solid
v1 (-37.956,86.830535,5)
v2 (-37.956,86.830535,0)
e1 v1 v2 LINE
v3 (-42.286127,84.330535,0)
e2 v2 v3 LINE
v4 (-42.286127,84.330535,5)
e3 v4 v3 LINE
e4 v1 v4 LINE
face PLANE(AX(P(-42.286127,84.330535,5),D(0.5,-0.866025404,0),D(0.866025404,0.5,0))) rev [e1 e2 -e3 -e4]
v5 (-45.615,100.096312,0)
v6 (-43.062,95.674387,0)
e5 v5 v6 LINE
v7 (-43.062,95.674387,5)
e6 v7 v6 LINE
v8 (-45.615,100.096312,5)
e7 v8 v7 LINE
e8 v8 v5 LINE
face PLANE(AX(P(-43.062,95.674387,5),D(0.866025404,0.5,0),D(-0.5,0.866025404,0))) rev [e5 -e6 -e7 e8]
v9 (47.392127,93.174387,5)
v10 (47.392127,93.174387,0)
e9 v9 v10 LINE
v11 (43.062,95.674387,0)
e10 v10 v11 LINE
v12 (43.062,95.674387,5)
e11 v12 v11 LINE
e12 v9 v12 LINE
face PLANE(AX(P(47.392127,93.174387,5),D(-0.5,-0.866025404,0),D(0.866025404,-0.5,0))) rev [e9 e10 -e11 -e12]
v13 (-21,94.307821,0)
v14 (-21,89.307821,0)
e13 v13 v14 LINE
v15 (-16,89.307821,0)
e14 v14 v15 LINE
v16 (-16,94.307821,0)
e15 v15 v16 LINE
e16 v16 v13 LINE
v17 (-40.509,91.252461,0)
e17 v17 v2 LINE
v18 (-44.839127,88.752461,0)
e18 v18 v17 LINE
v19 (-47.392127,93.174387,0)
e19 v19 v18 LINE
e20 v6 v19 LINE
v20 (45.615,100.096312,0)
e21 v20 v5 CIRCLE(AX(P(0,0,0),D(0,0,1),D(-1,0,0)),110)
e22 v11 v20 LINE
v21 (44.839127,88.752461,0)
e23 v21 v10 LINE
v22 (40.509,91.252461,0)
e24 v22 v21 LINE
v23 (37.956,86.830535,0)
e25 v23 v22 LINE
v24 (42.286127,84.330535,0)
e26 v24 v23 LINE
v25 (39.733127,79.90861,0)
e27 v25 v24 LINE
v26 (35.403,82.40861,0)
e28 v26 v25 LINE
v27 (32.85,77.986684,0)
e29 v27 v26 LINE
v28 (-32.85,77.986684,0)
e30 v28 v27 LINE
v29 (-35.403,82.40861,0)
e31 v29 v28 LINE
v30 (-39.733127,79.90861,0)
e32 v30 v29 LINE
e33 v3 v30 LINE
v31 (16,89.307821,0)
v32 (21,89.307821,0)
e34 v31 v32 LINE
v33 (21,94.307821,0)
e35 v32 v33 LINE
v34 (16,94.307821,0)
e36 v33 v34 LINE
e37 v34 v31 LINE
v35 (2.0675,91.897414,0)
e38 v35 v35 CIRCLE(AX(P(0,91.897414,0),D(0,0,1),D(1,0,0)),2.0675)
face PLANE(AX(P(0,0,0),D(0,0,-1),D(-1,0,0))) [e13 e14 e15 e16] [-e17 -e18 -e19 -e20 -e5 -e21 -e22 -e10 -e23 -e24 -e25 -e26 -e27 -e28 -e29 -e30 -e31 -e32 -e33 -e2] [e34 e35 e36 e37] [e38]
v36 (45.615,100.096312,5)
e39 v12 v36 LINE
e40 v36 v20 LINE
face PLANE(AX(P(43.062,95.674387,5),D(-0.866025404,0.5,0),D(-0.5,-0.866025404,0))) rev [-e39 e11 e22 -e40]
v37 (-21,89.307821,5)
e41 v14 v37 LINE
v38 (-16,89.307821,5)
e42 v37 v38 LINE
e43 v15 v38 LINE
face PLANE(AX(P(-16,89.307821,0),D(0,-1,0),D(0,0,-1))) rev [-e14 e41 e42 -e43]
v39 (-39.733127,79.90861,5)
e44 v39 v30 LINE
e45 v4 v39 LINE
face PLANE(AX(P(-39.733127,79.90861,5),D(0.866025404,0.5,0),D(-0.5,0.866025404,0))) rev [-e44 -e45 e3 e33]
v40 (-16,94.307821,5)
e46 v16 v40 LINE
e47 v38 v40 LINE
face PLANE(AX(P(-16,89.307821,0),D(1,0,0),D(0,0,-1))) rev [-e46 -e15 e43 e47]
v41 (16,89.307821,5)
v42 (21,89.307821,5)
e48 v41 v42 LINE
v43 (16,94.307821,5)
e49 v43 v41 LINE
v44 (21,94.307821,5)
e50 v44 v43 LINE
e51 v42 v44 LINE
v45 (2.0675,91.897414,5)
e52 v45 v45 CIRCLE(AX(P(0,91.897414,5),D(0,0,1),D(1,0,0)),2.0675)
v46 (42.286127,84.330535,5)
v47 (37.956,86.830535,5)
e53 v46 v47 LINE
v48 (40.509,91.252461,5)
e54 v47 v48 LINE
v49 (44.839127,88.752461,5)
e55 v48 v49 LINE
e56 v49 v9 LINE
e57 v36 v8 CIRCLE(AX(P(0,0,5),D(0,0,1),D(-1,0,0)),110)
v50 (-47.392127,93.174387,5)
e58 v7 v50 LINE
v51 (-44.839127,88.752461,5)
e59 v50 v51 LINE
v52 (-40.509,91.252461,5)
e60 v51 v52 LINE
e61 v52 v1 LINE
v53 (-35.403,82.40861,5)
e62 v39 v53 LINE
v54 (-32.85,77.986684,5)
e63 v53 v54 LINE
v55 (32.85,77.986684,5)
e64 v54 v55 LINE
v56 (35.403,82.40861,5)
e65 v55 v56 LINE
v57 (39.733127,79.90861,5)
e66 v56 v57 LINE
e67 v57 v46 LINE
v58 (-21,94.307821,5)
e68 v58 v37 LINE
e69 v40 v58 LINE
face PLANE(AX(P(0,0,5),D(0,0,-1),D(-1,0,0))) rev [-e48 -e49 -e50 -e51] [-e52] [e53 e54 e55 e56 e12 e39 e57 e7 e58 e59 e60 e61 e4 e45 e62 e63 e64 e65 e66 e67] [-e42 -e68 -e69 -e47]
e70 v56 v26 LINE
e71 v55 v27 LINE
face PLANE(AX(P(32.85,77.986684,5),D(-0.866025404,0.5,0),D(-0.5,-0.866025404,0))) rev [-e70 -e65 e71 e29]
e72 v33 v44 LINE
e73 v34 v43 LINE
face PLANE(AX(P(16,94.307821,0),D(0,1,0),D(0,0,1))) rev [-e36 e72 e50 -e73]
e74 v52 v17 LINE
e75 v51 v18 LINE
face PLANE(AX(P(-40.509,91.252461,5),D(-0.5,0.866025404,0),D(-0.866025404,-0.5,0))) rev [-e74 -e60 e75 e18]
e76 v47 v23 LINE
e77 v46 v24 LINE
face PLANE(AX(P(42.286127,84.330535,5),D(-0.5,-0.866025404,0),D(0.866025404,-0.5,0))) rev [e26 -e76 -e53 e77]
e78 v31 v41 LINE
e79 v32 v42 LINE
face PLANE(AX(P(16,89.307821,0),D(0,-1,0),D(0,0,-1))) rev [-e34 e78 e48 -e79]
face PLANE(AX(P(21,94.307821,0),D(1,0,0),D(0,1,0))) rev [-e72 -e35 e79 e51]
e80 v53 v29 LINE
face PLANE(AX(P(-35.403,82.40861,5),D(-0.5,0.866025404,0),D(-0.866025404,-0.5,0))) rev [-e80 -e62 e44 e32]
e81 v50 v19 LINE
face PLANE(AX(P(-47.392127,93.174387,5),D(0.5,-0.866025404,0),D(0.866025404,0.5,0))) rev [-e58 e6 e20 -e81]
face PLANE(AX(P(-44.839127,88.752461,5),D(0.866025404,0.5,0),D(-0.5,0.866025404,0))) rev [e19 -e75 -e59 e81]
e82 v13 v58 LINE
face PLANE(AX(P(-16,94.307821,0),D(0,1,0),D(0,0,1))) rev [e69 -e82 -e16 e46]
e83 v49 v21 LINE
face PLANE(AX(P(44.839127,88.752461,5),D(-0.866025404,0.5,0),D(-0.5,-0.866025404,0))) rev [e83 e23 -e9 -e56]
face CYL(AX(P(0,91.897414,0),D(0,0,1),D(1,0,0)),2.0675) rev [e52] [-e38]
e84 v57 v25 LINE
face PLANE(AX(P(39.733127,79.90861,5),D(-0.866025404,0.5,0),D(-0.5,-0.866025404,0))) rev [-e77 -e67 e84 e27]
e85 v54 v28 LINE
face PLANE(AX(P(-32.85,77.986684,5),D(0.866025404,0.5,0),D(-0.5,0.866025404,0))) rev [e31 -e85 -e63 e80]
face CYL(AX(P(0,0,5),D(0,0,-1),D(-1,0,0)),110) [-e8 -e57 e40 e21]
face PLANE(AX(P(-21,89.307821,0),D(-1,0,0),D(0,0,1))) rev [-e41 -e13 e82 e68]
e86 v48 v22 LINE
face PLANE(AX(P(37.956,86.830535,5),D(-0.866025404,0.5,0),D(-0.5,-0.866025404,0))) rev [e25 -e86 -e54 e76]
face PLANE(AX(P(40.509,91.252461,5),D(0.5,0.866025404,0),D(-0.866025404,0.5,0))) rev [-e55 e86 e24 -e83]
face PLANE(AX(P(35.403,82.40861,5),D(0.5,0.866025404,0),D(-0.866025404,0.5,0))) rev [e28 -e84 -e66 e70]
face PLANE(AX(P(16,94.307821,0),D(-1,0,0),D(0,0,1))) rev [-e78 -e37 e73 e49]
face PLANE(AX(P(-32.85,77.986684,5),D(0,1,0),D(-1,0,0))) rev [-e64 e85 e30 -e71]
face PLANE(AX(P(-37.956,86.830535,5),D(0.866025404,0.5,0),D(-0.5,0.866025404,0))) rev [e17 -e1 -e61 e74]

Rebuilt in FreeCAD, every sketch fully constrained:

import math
import FreeCAD as App
import Part
import Sketcher
Q = App.Units.Quantity


def add_polygon(sketch, points):
    """Adds a closed chain of lines whose ends are joined by coincident constraints."""
    first, n = sketch.GeometryCount, len(points)
    for a, b in zip(points, points[1:] + points[:1]):
        sketch.addGeometry(Part.LineSegment(App.Vector(*a, 0), App.Vector(*b, 0)), False)
    for i in range(n):
        sketch.addConstraint(Sketcher.Constraint("Coincident", first + i, 2, first + (i + 1) % n, 1))

doc = App.newDocument("Part")
params = doc.addObject("Spreadsheet::Sheet", "Params")
for row, (alias, value) in enumerate([
    ("sketch1_radius", "110 mm"),
    ("sketch1_length", "5 mm"),
    ("sketch1_width", "65.7 mm"),
    ("pad1_length", "5 mm"),
    ("sketch2_width", "5 mm"),
], start=1):
    params.set(f"A{row}", alias)
    params.set(f"B{row}", "=" + value)
    params.setAlias(f"B{row}", alias)

body = doc.addObject("PartDesign::Body", "Body")

# Sketch on XY plane
sketch1 = doc.addObject("Sketcher::SketchObject", "Sketch")
body.addObject(sketch1)
sketch1.AttachmentSupport = (doc.XY_Plane, [""])
sketch1.MapMode = "FlatFace"
sketch1.addGeometry([
    Part.LineSegment(App.Vector(-33, 78, 0), App.Vector(33, 78, 0)),  # 0
    Part.LineSegment(App.Vector(33, 78, 0), App.Vector(35, 82, 0)),  # 1
    Part.LineSegment(App.Vector(35, 82, 0), App.Vector(40, 80, 0)),  # 2
    Part.LineSegment(App.Vector(40, 80, 0), App.Vector(42, 84, 0)),  # 3
    Part.LineSegment(App.Vector(42, 84, 0), App.Vector(38, 87, 0)),  # 4
    Part.LineSegment(App.Vector(38, 87, 0), App.Vector(41, 91, 0)),  # 5
    Part.LineSegment(App.Vector(41, 91, 0), App.Vector(45, 89, 0)),  # 6
    Part.LineSegment(App.Vector(45, 89, 0), App.Vector(47, 93, 0)),  # 7
    Part.LineSegment(App.Vector(47, 93, 0), App.Vector(43, 96, 0)),  # 8
    Part.LineSegment(App.Vector(43, 96, 0), App.Vector(46, 100, 0)),  # 9
    Part.ArcOfCircle(Part.Circle(App.Vector(0, 0, 0), App.Vector(0, 0, 1), 110), math.radians(66), math.radians(114)),  # 10
    Part.LineSegment(App.Vector(-46, 100, 0), App.Vector(-43, 96, 0)),  # 11
    Part.LineSegment(App.Vector(-43, 96, 0), App.Vector(-47, 93, 0)),  # 12
    Part.LineSegment(App.Vector(-47, 93, 0), App.Vector(-45, 89, 0)),  # 13
    Part.LineSegment(App.Vector(-45, 89, 0), App.Vector(-41, 91, 0)),  # 14
    Part.LineSegment(App.Vector(-41, 91, 0), App.Vector(-38, 87, 0)),  # 15
    Part.LineSegment(App.Vector(-38, 87, 0), App.Vector(-42, 84, 0)),  # 16
    Part.LineSegment(App.Vector(-42, 84, 0), App.Vector(-40, 80, 0)),  # 17
    Part.LineSegment(App.Vector(-40, 80, 0), App.Vector(-35, 82, 0)),  # 18
    Part.LineSegment(App.Vector(-35, 82, 0), App.Vector(-33, 78, 0)),  # 19
], False)
sketch1.addConstraint([
    Sketcher.Constraint("Coincident", 0, 2, 1, 1),
    Sketcher.Constraint("Coincident", 1, 2, 2, 1),
    Sketcher.Constraint("Coincident", 2, 2, 3, 1),
    Sketcher.Constraint("Coincident", 3, 2, 4, 1),
    Sketcher.Constraint("Coincident", 4, 2, 5, 1),
    Sketcher.Constraint("Coincident", 5, 2, 6, 1),
    Sketcher.Constraint("Coincident", 6, 2, 7, 1),
    Sketcher.Constraint("Coincident", 7, 2, 8, 1),
    Sketcher.Constraint("Coincident", 8, 2, 9, 1),
    Sketcher.Constraint("Coincident", 9, 2, 10, 1),
    Sketcher.Constraint("Coincident", 10, 2, 11, 1),
    Sketcher.Constraint("Coincident", 11, 2, 12, 1),
    Sketcher.Constraint("Coincident", 12, 2, 13, 1),
    Sketcher.Constraint("Coincident", 13, 2, 14, 1),
    Sketcher.Constraint("Coincident", 14, 2, 15, 1),
    Sketcher.Constraint("Coincident", 15, 2, 16, 1),
    Sketcher.Constraint("Coincident", 16, 2, 17, 1),
    Sketcher.Constraint("Coincident", 17, 2, 18, 1),
    Sketcher.Constraint("Coincident", 18, 2, 19, 1),
    Sketcher.Constraint("Coincident", 19, 2, 0, 1),
    Sketcher.Constraint("Horizontal", 0),
    Sketcher.Constraint("Coincident", 10, 3, -1, 1),
    Sketcher.Constraint("Symmetric", 8, 2, 11, 2, -2),
    Sketcher.Constraint("Symmetric", 7, 2, 12, 2, -2),
    Sketcher.Constraint("Symmetric", 6, 2, 13, 2, -2),
    Sketcher.Constraint("Symmetric", 5, 2, 14, 2, -2),
    Sketcher.Constraint("Symmetric", 4, 2, 15, 2, -2),
    Sketcher.Constraint("Symmetric", 3, 2, 16, 2, -2),
    Sketcher.Constraint("Symmetric", 2, 2, 17, 2, -2),
    Sketcher.Constraint("Symmetric", 1, 2, 18, 2, -2),
    Sketcher.Constraint("Perpendicular", 1, 2),
    Sketcher.Constraint("Perpendicular", 2, 3),
    Sketcher.Constraint("Perpendicular", 3, 4),
    Sketcher.Constraint("Perpendicular", 4, 5),
    Sketcher.Constraint("Perpendicular", 5, 6),
    Sketcher.Constraint("Perpendicular", 6, 7),
    Sketcher.Constraint("Perpendicular", 7, 8),
    Sketcher.Constraint("Perpendicular", 8, 9),
    Sketcher.Constraint("Perpendicular", 11, 12),
    Sketcher.Constraint("Perpendicular", 18, 19),
    Sketcher.Constraint("Equal", 1, 3),
    Sketcher.Constraint("Equal", 2, 4),
    Sketcher.Constraint("Equal", 3, 5),
    Sketcher.Constraint("Equal", 4, 6),
    Sketcher.Constraint("Equal", 5, 7),
    Sketcher.Constraint("Equal", 6, 8),
    Sketcher.Constraint("Equal", 7, 9),
    Sketcher.Constraint("Radius", 10, Q("110 mm")),
    Sketcher.Constraint("Angle", 1, Q("60 deg")),
    Sketcher.Constraint("Distance", 2, Q("5 mm")),
    Sketcher.Constraint("DistanceX", 0, 1, 0, 2, Q("65.7 mm")),
    Sketcher.Constraint("Distance", 1, Q("5.106 mm")),
])
sketch1.setExpression("Constraints[47]", "Params.sketch1_radius")
sketch1.setExpression("Constraints[49]", "Params.sketch1_length")
sketch1.setExpression("Constraints[50]", "Params.sketch1_width")
pad1 = doc.addObject("PartDesign::Pad", "Pad")
body.addObject(pad1)
pad1.Profile = sketch1
pad1.setExpression("Length", "Params.pad1_length")

# Sketch on XY plane
sketch2 = doc.addObject("Sketcher::SketchObject", "Sketch001")
body.addObject(sketch2)
sketch2.AttachmentSupport = (doc.XY_Plane, [""])
sketch2.MapMode = "FlatFace"
sketch2.AttachmentOffset = App.Placement(App.Vector(0, 0, 5), App.Rotation())
sketch2.addGeometry(Part.Circle(App.Vector(0, 91.9, 0), App.Vector(0, 0, 1), 2.1), False)  # 0
add_polygon(sketch2, [(16, 94.3), (16, 89.3), (21, 89.3), (21, 94.3)])  # lines 1-4
add_polygon(sketch2, [(-21, 94.3), (-21, 89.3), (-16, 89.3), (-16, 94.3)])  # lines 5-8
sketch2.addConstraint([
    Sketcher.Constraint("Vertical", 1),
    Sketcher.Constraint("Horizontal", 2),
    Sketcher.Constraint("Vertical", 3),
    Sketcher.Constraint("Horizontal", 4),
    Sketcher.Constraint("Vertical", 5),
    Sketcher.Constraint("Horizontal", 6),
    Sketcher.Constraint("Vertical", 7),
    Sketcher.Constraint("Horizontal", 8),
    Sketcher.Constraint("Symmetric", 2, 2, 5, 2, -2),
    Sketcher.Constraint("Symmetric", 4, 2, 7, 2, -2),
    Sketcher.Constraint("PointOnObject", 0, 3, -2),
    Sketcher.Constraint("Equal", 8, 1),
    Sketcher.Constraint("DistanceX", 2, 1, 2, 2, Q("5 mm")),
    Sketcher.Constraint("Diameter", 0, Q("4.135 mm")),
    Sketcher.Constraint("DistanceX", -1, 1, 1, 2, Q("16 mm")),
    Sketcher.Constraint("DistanceY", -1, 1, 1, 2, Q("89.307821 mm")),
    Sketcher.Constraint("DistanceY", -1, 1, 0, 3, Q("91.897414 mm")),
])
sketch2.setExpression("Constraints[20]", "Params.sketch2_width")
pocket1 = doc.addObject("PartDesign::Pocket", "Pocket")
body.addObject(pocket1)
pocket1.Profile = sketch2
pocket1.Type = "ThroughAll"

doc.recompute()
